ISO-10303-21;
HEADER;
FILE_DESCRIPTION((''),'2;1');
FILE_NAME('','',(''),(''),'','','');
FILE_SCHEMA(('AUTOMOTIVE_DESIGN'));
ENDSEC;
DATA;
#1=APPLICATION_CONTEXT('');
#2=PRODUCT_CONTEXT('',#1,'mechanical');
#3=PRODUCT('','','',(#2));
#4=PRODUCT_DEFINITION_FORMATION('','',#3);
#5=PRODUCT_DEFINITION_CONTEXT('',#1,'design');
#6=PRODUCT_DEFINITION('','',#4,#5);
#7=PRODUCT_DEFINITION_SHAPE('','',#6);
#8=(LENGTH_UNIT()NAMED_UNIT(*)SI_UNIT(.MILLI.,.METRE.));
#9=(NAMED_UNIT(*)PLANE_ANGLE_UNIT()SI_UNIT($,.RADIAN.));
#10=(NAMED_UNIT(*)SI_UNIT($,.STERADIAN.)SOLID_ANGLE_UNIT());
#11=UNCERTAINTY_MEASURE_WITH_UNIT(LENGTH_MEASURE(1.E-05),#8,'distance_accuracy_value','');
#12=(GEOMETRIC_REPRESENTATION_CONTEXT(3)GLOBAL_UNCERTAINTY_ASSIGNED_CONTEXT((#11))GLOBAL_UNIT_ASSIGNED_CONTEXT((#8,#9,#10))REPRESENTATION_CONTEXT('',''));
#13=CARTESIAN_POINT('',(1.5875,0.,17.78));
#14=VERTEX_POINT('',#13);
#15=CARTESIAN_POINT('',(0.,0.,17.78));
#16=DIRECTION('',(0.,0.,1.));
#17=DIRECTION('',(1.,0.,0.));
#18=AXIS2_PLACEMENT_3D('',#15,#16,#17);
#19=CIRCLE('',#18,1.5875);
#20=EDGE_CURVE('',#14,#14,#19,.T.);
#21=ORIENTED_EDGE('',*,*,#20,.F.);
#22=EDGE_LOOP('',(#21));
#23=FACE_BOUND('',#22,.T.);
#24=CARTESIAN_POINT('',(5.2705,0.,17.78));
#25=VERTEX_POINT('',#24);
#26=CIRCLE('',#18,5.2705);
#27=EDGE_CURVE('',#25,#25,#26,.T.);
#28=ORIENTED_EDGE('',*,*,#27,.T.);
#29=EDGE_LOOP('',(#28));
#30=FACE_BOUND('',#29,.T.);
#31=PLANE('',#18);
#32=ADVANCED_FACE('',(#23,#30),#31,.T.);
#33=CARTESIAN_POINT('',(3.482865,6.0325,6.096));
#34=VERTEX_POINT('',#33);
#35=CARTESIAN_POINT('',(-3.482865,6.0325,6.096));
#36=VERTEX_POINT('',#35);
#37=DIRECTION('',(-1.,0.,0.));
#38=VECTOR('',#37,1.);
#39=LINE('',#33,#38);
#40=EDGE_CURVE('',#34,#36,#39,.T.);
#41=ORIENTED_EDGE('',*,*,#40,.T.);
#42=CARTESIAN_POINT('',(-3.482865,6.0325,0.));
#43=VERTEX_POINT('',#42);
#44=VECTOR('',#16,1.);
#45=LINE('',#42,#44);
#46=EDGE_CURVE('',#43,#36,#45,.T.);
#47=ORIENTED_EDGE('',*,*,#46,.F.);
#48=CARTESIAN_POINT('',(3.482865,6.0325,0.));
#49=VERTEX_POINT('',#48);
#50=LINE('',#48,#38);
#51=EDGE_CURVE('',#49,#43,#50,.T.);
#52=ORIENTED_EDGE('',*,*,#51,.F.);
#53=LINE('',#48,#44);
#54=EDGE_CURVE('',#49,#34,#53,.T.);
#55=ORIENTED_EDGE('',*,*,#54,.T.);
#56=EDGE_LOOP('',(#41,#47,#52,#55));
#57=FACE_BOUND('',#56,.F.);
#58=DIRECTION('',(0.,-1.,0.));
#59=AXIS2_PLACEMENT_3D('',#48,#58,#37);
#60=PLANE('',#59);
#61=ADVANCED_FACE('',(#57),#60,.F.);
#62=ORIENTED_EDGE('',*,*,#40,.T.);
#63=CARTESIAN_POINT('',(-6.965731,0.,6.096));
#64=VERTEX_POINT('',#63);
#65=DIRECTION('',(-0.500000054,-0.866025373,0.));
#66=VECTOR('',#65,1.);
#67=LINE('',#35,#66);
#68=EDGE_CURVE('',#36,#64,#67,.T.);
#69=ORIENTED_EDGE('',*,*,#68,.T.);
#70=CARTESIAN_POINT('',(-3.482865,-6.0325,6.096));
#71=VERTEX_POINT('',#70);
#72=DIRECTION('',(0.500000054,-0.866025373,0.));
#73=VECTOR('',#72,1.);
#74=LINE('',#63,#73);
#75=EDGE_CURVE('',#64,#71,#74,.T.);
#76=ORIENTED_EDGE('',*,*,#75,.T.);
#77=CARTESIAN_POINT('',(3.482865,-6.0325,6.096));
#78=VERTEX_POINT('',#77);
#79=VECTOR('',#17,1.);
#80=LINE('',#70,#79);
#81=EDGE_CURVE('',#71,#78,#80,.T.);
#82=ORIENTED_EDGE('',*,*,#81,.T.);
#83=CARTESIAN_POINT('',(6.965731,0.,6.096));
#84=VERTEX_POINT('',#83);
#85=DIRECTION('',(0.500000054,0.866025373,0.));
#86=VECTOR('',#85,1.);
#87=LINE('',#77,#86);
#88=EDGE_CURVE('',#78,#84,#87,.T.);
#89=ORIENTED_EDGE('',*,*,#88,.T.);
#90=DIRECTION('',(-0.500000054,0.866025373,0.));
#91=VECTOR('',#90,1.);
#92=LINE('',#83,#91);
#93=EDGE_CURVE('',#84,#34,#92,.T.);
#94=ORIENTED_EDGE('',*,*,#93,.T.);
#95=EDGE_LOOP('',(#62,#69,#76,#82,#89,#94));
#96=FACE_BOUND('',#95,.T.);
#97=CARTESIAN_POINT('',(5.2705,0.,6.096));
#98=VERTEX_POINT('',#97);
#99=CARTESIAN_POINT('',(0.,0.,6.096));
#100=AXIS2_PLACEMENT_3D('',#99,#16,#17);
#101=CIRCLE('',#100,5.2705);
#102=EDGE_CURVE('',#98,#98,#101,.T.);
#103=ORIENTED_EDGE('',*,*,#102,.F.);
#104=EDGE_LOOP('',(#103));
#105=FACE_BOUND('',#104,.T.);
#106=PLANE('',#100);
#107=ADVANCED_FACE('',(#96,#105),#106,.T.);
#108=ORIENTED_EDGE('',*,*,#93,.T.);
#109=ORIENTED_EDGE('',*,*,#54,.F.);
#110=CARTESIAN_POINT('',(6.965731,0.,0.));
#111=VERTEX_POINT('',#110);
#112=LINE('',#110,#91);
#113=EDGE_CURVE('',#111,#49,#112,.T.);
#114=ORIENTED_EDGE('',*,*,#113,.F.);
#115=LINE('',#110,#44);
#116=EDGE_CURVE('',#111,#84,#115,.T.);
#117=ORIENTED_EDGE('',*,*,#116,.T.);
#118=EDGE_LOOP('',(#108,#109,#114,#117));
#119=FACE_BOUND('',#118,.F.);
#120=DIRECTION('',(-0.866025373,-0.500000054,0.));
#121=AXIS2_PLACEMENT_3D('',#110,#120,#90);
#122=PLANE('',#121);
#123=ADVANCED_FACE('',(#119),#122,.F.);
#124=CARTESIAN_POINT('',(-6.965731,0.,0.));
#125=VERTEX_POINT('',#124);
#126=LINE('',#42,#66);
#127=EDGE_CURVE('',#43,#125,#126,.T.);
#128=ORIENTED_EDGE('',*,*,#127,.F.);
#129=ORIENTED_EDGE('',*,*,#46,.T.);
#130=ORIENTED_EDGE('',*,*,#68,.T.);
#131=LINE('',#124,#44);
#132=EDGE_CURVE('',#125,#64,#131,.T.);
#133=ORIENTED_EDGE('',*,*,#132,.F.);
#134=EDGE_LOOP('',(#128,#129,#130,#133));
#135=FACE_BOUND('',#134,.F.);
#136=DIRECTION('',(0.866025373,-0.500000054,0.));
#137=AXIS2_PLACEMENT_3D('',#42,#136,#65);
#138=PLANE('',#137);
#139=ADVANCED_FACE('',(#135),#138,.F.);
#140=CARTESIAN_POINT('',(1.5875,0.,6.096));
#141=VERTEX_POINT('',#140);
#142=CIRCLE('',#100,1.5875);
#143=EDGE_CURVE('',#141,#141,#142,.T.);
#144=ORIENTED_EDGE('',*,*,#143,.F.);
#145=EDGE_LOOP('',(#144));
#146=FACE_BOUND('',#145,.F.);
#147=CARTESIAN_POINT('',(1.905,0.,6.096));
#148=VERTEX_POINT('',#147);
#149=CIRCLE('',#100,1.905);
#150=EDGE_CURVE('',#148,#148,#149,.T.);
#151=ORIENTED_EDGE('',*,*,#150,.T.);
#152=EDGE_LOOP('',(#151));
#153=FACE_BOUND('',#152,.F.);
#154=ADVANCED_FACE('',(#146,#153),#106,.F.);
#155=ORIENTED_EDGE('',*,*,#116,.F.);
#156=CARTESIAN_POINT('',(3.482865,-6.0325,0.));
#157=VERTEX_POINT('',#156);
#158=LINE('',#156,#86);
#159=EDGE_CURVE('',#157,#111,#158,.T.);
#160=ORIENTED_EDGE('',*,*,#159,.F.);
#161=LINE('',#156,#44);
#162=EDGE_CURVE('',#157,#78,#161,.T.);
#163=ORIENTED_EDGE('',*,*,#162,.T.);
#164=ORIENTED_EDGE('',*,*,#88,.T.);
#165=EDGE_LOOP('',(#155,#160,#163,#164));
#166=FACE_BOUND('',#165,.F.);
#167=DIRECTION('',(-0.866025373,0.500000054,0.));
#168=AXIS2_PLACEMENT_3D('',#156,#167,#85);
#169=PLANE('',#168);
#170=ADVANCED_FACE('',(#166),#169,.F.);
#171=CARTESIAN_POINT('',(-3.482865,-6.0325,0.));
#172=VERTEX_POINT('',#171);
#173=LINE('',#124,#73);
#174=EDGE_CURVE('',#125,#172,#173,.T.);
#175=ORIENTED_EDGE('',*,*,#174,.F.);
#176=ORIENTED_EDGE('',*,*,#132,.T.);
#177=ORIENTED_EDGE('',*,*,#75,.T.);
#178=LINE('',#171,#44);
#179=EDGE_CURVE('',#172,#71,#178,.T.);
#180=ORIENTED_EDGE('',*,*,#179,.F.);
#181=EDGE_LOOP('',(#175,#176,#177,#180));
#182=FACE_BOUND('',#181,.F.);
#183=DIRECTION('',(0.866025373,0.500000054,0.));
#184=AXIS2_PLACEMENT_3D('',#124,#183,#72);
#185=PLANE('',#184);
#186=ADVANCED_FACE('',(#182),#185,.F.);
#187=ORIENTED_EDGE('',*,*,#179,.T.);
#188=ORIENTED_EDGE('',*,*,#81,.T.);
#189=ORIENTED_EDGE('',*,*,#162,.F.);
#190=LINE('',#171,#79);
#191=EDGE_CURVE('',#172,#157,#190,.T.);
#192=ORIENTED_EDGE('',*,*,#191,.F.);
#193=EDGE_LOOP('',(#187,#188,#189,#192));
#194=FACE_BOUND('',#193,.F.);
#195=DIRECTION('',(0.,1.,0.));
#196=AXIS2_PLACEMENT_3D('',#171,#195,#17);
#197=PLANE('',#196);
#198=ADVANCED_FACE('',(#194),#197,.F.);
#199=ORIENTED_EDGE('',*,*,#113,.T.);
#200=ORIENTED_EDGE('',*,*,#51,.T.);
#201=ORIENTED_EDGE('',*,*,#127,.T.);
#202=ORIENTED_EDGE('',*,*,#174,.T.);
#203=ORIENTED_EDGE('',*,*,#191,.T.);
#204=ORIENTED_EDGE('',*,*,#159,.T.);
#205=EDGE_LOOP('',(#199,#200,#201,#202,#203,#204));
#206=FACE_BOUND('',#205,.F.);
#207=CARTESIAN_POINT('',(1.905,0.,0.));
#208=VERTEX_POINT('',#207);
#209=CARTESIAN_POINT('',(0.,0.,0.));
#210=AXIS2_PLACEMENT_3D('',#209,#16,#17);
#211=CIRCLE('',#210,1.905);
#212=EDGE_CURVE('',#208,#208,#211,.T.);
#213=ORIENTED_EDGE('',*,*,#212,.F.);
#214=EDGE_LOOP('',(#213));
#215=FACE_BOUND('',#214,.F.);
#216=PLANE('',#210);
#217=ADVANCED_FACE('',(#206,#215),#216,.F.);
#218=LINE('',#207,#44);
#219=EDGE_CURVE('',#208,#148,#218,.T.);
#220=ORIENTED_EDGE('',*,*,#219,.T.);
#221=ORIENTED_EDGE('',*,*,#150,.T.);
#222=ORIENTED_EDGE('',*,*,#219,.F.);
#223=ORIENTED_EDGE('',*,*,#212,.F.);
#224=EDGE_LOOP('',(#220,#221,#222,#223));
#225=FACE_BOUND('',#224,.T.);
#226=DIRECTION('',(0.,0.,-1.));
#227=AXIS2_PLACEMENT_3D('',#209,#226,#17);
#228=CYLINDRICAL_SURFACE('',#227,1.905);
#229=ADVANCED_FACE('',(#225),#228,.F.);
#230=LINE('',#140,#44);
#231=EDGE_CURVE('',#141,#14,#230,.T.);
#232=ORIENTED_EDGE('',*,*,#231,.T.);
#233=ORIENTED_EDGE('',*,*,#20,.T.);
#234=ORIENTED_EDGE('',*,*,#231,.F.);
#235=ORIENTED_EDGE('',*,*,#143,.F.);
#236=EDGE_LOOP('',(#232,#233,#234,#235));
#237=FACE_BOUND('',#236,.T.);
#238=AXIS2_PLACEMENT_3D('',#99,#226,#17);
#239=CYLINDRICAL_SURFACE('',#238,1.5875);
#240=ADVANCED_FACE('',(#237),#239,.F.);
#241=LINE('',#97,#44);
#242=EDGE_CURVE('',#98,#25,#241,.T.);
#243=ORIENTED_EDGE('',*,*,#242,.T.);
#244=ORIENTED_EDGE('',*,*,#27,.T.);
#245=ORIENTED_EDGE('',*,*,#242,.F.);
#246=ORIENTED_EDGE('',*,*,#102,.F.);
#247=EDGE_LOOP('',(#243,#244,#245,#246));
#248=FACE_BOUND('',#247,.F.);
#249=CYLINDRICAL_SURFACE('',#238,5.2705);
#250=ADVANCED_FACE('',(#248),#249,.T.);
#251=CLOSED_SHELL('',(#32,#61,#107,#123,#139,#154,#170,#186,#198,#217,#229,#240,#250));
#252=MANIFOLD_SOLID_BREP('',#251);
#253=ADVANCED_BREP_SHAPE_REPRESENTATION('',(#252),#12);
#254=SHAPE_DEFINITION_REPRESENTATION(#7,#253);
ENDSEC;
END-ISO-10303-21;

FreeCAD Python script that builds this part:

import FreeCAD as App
import Part
import Sketcher

V = App.Vector
Q = App.Units.Quantity

doc = App.newDocument("Part")
body = doc.addObject("PartDesign::Body", "Body")

# Sketch on XY plane
sketch1 = body.newObject("Sketcher::SketchObject", "Sketch")
sketch1.AttachmentSupport = (doc.getObject("XY_Plane"), [""])
sketch1.MapMode = "FlatFace"
sketch1.addGeometry(Part.LineSegment(V(3.5, 6, 0), V(-3.5, 6, 0)), False)
sketch1.addGeometry(Part.LineSegment(V(-3.5, 6, 0), V(-7, 0, 0)), False)
sketch1.addGeometry(Part.LineSegment(V(-7, 0, 0), V(-3.5, -6, 0)), False)
sketch1.addGeometry(Part.LineSegment(V(-3.5, -6, 0), V(3.5, -6, 0)), False)
sketch1.addGeometry(Part.LineSegment(V(3.5, -6, 0), V(7, 0, 0)), False)
sketch1.addGeometry(Part.LineSegment(V(7, 0, 0), V(3.5, 6, 0)), False)
sketch1.addGeometry(Part.Circle(V(0, 0, 0), V(0, 0, 1), 1.9), False)
sketch1.addConstraint(Sketcher.Constraint("Coincident", 0, 2, 1, 1))
sketch1.addConstraint(Sketcher.Constraint("Coincident", 1, 2, 2, 1))
sketch1.addConstraint(Sketcher.Constraint("Coincident", 2, 2, 3, 1))
sketch1.addConstraint(Sketcher.Constraint("Coincident", 3, 2, 4, 1))
sketch1.addConstraint(Sketcher.Constraint("Coincident", 4, 2, 5, 1))
sketch1.addConstraint(Sketcher.Constraint("Coincident", 5, 2, 0, 1))
sketch1.addConstraint(Sketcher.Constraint("Horizontal", 0))
sketch1.addConstraint(Sketcher.Constraint("Horizontal", 3))
sketch1.addConstraint(Sketcher.Constraint("Coincident", 6, 3, -1, 1))
sketch1.addConstraint(Sketcher.Constraint("Symmetric", 0, 2, 3, 2, -1, 1))
sketch1.addConstraint(Sketcher.Constraint("Symmetric", 1, 2, 4, 2, -1, 1))
sketch1.addConstraint(Sketcher.Constraint("PointOnObject", 1, 2, -1))
sketch1.addConstraint(Sketcher.Constraint("Parallel", 2, 5))
sketch1.addConstraint(Sketcher.Constraint("Vertical", 0, 2, 2, 2))
sketch1.addConstraint(Sketcher.Constraint("Diameter", 6, Q("0.15 in")))
sketch1.addConstraint(Sketcher.Constraint("Angle", 1, Q("-120.000004 deg")))
sketch1.addConstraint(Sketcher.Constraint("DistanceY", 2, 2, 0, 2, Q("0.475 in")))
sketch1.addConstraint(Sketcher.Constraint("DistanceX", 0, 2, 0, 1, 6.96573))
pad1 = body.newObject("PartDesign::Pad", "Pad")
pad1.Profile = sketch1
pad1.Length = Q("0.24 in")

# Sketch on XY plane
sketch2 = body.newObject("Sketcher::SketchObject", "Sketch001")
sketch2.AttachmentSupport = (doc.getObject("XY_Plane"), [""])
sketch2.MapMode = "FlatFace"
sketch2.AttachmentOffset = App.Placement(V(0, 0, 0.24 * 25.4), App.Rotation())
sketch2.addGeometry(Part.Circle(V(0, 0, 0), V(0, 0, 1), 5.3), False)
sketch2.addGeometry(Part.Circle(V(0, 0, 0), V(0, 0, 1), 1.6), False)
sketch2.addConstraint(Sketcher.Constraint("Coincident", 0, 3, -1, 1))
sketch2.addConstraint(Sketcher.Constraint("Coincident", 1, 3, -1, 1))
sketch2.addConstraint(Sketcher.Constraint("Diameter", 0, Q("0.415 in")))
sketch2.addConstraint(Sketcher.Constraint("Diameter", 1, Q("0.125 in")))
pad2 = body.newObject("PartDesign::Pad", "Pad001")
pad2.Profile = sketch2
pad2.Length = Q("0.46 in")

doc.recompute()
